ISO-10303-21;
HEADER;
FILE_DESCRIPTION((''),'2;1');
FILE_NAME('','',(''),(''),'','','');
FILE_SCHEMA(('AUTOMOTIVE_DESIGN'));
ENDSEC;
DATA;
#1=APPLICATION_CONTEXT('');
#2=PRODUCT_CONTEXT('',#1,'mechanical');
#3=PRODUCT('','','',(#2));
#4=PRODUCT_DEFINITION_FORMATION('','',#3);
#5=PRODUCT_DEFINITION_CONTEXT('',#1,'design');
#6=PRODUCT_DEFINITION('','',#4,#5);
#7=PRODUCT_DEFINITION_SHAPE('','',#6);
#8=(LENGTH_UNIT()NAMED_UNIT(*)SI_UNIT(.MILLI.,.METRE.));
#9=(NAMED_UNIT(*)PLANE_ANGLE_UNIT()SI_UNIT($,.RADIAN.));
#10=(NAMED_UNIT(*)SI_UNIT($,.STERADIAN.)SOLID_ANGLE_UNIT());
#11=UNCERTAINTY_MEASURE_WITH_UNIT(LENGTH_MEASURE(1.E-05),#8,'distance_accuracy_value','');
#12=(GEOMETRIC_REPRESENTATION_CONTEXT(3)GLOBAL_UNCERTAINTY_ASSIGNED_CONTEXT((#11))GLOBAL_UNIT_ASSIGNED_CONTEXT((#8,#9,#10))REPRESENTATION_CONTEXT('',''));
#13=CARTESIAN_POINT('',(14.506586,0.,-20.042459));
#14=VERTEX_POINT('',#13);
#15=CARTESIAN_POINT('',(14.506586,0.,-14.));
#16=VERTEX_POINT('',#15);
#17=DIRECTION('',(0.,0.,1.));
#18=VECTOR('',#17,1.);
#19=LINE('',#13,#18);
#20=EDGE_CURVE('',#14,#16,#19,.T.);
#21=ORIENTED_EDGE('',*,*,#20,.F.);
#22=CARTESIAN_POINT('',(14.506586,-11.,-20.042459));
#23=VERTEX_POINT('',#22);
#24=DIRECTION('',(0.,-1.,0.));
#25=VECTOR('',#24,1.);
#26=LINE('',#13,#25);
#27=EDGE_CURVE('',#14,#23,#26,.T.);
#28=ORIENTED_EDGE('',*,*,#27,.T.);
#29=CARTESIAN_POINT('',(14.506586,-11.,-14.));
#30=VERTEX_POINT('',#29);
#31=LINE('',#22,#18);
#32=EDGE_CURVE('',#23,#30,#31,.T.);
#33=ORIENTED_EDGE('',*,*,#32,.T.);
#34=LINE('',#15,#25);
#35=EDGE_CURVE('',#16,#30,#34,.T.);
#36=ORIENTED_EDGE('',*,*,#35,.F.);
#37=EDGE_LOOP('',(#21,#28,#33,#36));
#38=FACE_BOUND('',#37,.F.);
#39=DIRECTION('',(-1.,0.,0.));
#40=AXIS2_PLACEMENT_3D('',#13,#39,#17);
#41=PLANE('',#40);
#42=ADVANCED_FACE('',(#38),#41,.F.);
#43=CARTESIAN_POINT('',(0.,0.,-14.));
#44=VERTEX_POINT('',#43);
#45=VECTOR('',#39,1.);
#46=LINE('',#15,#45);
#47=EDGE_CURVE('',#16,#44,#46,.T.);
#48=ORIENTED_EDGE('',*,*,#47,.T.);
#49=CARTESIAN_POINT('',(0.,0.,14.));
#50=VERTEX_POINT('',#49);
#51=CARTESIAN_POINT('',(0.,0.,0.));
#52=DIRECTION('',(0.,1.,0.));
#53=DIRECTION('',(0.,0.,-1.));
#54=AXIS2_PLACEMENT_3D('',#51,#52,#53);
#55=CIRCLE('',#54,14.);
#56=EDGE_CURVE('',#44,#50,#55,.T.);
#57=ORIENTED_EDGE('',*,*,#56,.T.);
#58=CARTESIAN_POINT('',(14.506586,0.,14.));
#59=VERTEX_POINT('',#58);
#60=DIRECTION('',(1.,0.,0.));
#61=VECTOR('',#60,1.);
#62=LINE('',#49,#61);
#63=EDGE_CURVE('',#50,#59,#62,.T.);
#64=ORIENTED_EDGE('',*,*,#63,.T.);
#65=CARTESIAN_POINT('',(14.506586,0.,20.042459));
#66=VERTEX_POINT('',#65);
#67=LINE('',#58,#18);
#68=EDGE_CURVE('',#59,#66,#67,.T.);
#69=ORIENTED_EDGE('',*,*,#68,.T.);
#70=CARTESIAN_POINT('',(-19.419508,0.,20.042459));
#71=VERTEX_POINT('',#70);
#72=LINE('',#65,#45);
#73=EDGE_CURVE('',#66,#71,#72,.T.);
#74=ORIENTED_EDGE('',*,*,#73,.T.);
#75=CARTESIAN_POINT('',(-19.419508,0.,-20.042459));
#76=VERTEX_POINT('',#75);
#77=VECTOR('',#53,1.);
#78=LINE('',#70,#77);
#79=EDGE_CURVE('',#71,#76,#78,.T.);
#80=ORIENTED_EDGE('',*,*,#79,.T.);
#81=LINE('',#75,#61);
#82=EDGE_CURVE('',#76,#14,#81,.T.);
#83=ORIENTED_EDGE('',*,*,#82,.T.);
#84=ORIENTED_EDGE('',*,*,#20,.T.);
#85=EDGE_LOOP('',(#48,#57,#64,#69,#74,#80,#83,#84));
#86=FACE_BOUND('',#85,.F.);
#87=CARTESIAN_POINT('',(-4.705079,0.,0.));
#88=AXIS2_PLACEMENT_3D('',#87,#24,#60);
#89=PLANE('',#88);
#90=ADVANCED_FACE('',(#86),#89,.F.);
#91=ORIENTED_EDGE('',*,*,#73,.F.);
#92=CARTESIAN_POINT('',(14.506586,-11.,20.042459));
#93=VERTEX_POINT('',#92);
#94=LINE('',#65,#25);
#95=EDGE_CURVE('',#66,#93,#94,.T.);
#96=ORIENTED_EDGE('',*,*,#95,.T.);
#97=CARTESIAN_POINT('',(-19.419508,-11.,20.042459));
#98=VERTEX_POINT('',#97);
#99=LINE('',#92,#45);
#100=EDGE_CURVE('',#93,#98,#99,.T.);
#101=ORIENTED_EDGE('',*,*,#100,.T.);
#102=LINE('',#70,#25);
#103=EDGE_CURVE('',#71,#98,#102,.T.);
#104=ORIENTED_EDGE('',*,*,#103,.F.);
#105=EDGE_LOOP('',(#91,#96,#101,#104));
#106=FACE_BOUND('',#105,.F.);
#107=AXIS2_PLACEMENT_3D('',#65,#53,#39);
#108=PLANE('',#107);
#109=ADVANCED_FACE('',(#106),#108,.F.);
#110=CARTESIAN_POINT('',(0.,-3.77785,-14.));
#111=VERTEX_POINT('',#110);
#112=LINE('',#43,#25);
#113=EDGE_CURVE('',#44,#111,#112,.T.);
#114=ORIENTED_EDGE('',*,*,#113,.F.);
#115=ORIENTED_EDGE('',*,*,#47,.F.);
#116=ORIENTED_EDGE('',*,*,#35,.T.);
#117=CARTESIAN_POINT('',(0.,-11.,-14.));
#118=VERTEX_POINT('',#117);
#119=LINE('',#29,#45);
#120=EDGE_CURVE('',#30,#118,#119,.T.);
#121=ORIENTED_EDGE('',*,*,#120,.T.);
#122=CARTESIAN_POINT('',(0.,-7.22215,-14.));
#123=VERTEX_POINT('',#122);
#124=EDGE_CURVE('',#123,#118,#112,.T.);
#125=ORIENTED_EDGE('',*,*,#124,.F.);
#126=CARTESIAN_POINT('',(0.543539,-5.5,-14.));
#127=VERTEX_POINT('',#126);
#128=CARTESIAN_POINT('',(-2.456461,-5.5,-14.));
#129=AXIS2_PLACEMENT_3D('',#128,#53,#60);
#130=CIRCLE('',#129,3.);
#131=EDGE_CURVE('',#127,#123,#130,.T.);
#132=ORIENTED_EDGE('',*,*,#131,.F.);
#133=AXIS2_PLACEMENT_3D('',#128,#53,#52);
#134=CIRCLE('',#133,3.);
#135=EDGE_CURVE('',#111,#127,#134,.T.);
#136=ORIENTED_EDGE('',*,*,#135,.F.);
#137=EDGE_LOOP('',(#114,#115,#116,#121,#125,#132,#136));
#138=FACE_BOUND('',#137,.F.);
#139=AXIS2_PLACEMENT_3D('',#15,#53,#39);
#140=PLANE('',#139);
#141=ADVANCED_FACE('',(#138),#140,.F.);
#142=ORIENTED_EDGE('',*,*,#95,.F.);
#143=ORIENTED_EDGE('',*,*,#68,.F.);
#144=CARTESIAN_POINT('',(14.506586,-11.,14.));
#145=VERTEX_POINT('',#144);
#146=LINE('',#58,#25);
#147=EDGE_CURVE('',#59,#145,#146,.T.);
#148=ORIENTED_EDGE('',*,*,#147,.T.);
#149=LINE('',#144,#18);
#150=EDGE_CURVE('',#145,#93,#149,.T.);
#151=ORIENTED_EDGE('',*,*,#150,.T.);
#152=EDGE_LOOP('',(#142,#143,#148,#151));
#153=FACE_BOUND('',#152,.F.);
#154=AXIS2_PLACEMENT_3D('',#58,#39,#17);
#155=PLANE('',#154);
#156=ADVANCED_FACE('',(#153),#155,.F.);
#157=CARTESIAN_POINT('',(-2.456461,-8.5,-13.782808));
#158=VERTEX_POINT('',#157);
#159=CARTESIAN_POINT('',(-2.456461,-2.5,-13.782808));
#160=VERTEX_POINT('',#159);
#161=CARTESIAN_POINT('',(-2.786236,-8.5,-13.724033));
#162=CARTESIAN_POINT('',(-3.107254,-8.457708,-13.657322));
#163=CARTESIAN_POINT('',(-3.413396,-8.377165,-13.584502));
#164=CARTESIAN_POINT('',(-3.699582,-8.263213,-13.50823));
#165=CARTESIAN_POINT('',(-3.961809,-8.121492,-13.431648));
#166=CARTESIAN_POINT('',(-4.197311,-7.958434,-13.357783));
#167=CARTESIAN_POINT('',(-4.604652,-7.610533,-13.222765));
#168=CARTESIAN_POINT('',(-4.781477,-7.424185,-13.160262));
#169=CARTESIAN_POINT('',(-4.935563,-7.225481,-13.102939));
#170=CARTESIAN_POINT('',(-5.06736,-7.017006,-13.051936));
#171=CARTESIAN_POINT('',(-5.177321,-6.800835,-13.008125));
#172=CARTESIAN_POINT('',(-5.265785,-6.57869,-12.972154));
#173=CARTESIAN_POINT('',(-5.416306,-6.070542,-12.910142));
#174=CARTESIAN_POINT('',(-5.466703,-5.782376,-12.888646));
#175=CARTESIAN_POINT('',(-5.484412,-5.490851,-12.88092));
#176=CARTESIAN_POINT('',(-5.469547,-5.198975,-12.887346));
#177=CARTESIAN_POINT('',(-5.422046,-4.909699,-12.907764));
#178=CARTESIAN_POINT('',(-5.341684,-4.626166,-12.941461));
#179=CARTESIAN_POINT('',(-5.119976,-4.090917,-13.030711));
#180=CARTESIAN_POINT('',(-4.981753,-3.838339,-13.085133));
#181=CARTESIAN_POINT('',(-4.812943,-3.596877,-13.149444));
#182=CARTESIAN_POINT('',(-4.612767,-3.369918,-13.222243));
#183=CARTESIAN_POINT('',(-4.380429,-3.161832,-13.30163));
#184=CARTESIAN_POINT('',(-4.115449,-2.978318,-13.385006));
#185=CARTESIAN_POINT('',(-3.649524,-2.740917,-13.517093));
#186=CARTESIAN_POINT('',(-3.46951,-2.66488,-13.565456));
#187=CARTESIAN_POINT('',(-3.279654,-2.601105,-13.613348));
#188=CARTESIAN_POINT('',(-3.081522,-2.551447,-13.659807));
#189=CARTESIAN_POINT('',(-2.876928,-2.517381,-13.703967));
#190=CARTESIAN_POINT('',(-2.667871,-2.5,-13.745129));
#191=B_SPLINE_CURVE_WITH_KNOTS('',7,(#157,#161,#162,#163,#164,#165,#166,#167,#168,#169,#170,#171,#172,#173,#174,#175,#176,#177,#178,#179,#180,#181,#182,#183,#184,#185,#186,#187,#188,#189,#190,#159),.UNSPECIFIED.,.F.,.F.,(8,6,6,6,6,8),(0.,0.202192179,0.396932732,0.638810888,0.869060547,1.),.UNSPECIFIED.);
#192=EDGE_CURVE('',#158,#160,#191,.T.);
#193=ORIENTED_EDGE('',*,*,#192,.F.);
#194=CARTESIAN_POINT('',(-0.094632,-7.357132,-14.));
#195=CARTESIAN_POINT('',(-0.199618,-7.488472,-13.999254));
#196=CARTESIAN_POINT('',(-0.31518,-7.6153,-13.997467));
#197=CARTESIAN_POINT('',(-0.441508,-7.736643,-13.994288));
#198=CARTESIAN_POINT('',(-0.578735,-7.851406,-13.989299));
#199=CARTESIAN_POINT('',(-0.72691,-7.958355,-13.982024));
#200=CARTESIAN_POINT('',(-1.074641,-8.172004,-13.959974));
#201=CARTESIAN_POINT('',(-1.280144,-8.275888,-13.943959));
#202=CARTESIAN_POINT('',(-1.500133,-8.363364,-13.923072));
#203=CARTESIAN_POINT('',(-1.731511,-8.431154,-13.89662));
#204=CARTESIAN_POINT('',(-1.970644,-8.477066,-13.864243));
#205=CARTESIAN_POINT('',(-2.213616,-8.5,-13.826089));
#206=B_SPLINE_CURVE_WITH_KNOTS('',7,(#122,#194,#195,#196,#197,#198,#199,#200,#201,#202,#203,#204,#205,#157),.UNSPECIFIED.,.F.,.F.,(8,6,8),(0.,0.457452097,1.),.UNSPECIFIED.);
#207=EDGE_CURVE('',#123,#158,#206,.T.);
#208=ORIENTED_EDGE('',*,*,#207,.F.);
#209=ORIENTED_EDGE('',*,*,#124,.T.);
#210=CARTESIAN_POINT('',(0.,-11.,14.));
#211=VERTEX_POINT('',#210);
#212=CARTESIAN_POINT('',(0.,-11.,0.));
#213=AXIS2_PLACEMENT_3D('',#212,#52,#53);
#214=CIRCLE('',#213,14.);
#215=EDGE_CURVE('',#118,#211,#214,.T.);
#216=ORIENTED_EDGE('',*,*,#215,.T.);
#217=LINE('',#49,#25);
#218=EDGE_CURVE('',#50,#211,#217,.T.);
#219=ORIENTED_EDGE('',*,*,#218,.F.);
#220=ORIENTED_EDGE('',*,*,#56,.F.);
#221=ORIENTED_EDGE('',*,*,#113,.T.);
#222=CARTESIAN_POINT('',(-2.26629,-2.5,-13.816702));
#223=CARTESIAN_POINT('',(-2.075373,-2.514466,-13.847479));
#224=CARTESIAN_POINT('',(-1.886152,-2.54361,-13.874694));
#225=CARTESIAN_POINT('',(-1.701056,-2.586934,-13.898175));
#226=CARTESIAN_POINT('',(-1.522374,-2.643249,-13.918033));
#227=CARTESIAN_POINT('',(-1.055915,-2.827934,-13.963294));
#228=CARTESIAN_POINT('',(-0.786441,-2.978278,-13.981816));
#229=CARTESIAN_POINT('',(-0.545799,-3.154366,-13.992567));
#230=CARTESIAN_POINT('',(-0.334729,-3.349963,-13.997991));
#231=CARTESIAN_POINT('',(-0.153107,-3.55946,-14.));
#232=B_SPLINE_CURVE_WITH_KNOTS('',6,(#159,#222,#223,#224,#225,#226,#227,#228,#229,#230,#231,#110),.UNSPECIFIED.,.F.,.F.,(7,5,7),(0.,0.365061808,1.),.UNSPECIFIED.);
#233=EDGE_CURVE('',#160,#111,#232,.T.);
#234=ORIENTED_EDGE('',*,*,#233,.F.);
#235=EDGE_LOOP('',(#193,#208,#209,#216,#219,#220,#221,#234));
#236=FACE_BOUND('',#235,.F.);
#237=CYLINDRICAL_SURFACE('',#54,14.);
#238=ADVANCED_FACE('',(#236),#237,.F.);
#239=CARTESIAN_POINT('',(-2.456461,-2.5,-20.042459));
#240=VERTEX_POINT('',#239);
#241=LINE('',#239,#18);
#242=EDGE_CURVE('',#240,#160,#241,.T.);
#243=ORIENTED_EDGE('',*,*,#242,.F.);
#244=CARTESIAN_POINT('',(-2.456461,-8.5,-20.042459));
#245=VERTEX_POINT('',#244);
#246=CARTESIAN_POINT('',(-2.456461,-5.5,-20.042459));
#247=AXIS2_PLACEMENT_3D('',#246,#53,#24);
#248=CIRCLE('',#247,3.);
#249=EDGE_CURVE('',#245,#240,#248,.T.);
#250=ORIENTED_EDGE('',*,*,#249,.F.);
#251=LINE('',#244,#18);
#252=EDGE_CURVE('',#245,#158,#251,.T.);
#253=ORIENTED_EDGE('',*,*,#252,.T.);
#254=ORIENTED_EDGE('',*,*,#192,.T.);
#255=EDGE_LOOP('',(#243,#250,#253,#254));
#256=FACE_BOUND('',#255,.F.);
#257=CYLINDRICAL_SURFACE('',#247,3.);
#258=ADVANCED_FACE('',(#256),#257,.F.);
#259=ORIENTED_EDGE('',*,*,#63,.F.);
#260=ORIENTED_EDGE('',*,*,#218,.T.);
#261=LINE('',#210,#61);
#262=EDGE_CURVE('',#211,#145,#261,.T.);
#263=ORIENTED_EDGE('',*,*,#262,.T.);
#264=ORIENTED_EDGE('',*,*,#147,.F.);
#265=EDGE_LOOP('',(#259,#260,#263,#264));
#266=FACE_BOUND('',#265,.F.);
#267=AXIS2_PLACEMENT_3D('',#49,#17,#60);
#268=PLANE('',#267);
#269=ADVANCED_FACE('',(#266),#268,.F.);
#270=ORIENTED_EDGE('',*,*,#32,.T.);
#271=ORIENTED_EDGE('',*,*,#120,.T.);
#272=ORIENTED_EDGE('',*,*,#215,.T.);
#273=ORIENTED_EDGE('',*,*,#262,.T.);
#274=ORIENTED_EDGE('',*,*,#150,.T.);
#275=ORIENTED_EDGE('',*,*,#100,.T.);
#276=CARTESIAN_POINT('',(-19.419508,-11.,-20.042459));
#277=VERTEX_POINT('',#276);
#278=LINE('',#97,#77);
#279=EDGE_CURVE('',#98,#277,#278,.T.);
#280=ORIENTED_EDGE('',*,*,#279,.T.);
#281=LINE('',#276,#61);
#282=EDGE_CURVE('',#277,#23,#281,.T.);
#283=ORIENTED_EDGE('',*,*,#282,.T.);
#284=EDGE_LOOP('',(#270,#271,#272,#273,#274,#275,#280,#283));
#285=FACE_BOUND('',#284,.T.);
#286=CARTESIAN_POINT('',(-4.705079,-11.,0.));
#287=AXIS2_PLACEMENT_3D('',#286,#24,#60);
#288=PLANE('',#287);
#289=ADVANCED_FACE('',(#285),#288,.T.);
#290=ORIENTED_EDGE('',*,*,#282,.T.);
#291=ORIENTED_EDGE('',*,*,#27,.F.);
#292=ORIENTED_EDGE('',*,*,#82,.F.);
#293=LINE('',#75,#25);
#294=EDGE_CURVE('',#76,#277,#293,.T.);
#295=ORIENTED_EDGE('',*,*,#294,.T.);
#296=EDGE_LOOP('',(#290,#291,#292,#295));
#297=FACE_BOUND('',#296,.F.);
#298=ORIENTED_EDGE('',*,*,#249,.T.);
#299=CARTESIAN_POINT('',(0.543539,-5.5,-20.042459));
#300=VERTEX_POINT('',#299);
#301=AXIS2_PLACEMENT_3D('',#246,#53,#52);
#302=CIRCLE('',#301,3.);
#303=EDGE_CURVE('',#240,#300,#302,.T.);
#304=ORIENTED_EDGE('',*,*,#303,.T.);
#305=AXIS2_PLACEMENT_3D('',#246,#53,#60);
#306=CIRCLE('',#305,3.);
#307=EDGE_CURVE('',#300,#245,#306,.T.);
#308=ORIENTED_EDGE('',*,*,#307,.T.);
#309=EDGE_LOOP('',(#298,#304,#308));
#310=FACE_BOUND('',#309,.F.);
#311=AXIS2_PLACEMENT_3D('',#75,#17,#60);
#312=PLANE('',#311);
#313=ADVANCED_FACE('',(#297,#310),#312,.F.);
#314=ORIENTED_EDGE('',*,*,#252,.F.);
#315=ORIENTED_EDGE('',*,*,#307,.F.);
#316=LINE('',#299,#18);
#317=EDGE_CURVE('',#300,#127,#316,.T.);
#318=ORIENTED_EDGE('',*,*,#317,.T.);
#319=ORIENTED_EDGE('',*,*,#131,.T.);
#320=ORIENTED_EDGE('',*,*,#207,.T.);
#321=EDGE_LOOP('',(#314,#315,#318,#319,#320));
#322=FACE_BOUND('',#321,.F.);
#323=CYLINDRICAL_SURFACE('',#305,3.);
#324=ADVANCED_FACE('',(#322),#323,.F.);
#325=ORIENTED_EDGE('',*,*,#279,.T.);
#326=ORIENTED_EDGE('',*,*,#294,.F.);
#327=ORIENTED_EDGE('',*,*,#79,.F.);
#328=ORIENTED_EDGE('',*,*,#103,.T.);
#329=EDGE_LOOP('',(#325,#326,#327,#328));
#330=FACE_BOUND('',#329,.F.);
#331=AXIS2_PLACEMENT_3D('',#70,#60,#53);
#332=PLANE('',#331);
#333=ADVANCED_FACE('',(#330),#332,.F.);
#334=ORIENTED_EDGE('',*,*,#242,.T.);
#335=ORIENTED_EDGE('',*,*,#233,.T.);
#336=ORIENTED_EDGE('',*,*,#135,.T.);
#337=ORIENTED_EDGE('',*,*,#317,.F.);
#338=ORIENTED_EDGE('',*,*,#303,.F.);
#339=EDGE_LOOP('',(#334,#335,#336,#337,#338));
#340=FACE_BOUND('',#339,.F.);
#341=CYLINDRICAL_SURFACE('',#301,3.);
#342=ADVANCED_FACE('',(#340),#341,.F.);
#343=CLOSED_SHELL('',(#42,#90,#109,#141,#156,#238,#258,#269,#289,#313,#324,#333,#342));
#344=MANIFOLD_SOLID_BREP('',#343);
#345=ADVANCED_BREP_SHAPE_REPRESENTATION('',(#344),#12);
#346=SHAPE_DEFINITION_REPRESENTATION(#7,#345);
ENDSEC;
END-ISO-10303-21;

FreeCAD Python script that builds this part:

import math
import FreeCAD as App
import Part
import Sketcher
from FreeCAD import Vector
Q = App.Units.Quantity

doc = App.newDocument("Part")
body = doc.addObject("PartDesign::Body", "Body")

# Sketch on XZ plane
sketch1 = body.newObject("Sketcher::SketchObject", "Sketch")
sketch1.AttachmentSupport = (doc.getObject("XZ_Plane"), [""])
sketch1.MapMode = "FlatFace"
sketch1.addGeometry([
    Part.LineSegment(Vector(15, 14, 0), Vector(15, 20, 0)),  # 0
    Part.LineSegment(Vector(15, 20, 0), Vector(-19, 20, 0)),  # 1
    Part.LineSegment(Vector(-19, 20, 0), Vector(-19, -20, 0)),  # 2
    Part.LineSegment(Vector(-19, -20, 0), Vector(15, -20, 0)),  # 3
    Part.LineSegment(Vector(15, -20, 0), Vector(15, -14, 0)),  # 4
    Part.LineSegment(Vector(15, -14, 0), Vector(0, -14, 0)),  # 5
    Part.ArcOfCircle(Part.Circle(Vector(0, 0, 0), Vector(0, 0, 1), 14), math.radians(90), math.radians(270)),  # 6
    Part.LineSegment(Vector(0, 14, 0), Vector(15, 14, 0)),  # 7
], False)
sketch1.addConstraint([
    Sketcher.Constraint("Coincident", 0, 2, 1, 1),
    Sketcher.Constraint("Coincident", 1, 2, 2, 1),
    Sketcher.Constraint("Coincident", 2, 2, 3, 1),
    Sketcher.Constraint("Coincident", 3, 2, 4, 1),
    Sketcher.Constraint("Coincident", 4, 2, 5, 1),
    Sketcher.Constraint("Tangent", 5, 2, 6, 2),
    Sketcher.Constraint("Tangent", 6, 1, 7, 1),
    Sketcher.Constraint("Coincident", 7, 2, 0, 1),
    Sketcher.Constraint("Vertical", 0),
    Sketcher.Constraint("Horizontal", 1),
    Sketcher.Constraint("Vertical", 2),
    Sketcher.Constraint("Horizontal", 3),
    Sketcher.Constraint("Vertical", 4),
    Sketcher.Constraint("Horizontal", 5),
    Sketcher.Constraint("Horizontal", 7),
    Sketcher.Constraint("Coincident", 6, 3, -1, 1),
    Sketcher.Constraint("Symmetric", 0, 2, 3, 2, -1),
    Sketcher.Constraint("Radius", 6, Q("14 mm")),
    Sketcher.Constraint("DistanceY", 0, 1, 0, 2, Q("6.042459 mm")),
    Sketcher.Constraint("DistanceX", 1, 2, 1, 1, Q("33.926094 mm")),
    Sketcher.Constraint("DistanceX", 5, 2, 5, 1, Q("14.506586 mm")),
])
pad1 = body.newObject("PartDesign::Pad", "Pad")
pad1.Profile = sketch1
pad1.Length = 11

# Sketch on XY plane
sketch2 = body.newObject("Sketcher::SketchObject", "Sketch001")
sketch2.AttachmentSupport = (doc.getObject("XY_Plane"), [""])
sketch2.MapMode = "FlatFace"
sketch2.AttachmentOffset = App.Placement(Vector(0, 0, -20.042459), App.Rotation())
sketch2.addGeometry([
    Part.ArcOfCircle(Part.Circle(Vector(-2.5, -5.5, 0), Vector(0, 0, 1), 3), math.radians(0), math.radians(90)),
    Part.ArcOfCircle(Part.Circle(Vector(-2.5, -5.5, 0), Vector(0, 0, 1), 3), math.radians(-90), math.radians(0)),
    Part.ArcOfCircle(Part.Circle(Vector(-2.5, -5.5, 0), Vector(0, 0, 1), 3), math.radians(90), math.radians(270)),
], False)
sketch2.addConstraint([
    Sketcher.Constraint("Tangent", 0, 1, 1, 2),
    Sketcher.Constraint("Tangent", 1, 1, 2, 2),
    Sketcher.Constraint("Tangent", 2, 1, 0, 2),
    Sketcher.Constraint("Horizontal", 2, 3, 0, 1),
    Sketcher.Constraint("Vertical", 2, 3, 1, 1),
    Sketcher.Constraint("Vertical", 1, 1, 2, 1),
    Sketcher.Constraint("Radius", 0, Q("3 mm")),
    Sketcher.Constraint("DistanceY", 0, 3, -1, 1, Q("5.5 mm")),
    Sketcher.Constraint("DistanceX", 0, 3, -1, 1, Q("2.456461 mm")),
])
pocket1 = body.newObject("PartDesign::Pocket", "Pocket")
pocket1.Profile = sketch2
pocket1.Length = 7.150552
pocket1.Reversed = True

doc.recompute()
